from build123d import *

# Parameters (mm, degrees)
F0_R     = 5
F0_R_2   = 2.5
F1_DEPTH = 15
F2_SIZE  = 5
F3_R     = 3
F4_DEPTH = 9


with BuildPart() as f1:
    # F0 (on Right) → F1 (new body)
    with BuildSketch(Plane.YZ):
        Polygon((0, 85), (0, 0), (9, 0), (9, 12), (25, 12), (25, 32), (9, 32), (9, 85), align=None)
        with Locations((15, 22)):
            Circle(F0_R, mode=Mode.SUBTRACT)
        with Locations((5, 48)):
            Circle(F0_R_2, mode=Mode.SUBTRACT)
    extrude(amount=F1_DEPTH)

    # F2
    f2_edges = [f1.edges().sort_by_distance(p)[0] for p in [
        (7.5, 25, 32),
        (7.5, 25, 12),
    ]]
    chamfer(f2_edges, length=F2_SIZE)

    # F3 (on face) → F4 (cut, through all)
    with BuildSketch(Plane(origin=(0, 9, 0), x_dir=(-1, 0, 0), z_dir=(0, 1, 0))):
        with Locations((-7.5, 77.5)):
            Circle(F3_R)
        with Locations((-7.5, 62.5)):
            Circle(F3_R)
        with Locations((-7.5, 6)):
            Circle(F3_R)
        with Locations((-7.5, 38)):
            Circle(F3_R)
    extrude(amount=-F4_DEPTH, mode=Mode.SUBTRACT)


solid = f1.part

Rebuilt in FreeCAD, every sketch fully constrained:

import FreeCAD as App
import Part
import Sketcher

V = App.Vector


def edges_at(feature, points):
    """Names of the edges that pass closest to the given points."""
    edges = feature.Shape.Edges
    near = lambda p: min(range(len(edges)), key=lambda i: edges[i].distToShape(Part.Vertex(*p))[0])
    return sorted({f"Edge{near(p) + 1}" for p in points})

doc = App.newDocument("Part")
body = doc.addObject("PartDesign::Body", "Body")

# Sketch on YZ plane
sketch1 = body.newObject("Sketcher::SketchObject", "Sketch")
sketch1.AttachmentSupport = (doc.getObject("YZ_Plane"), [""])
sketch1.MapMode = "FlatFace"
sketch1.addGeometry([
    Part.LineSegment(V(0, 85, 0), V(0, 0, 0)),  # 0
    Part.LineSegment(V(0, 0, 0), V(9, 0, 0)),  # 1
    Part.LineSegment(V(9, 0, 0), V(9, 12, 0)),  # 2
    Part.LineSegment(V(9, 12, 0), V(25, 12, 0)),  # 3
    Part.LineSegment(V(25, 12, 0), V(25, 32, 0)),  # 4
    Part.LineSegment(V(25, 32, 0), V(9, 32, 0)),  # 5
    Part.LineSegment(V(9, 32, 0), V(9, 85, 0)),  # 6
    Part.LineSegment(V(9, 85, 0), V(0, 85, 0)),  # 7
    Part.Circle(V(15, 22, 0), V(0, 0, 1), 5),  # 8
    Part.Circle(V(5, 48, 0), V(0, 0, 1), 2.5),  # 9
], False)
sketch1.addConstraint([
    Sketcher.Constraint("Coincident", 0, 2, 1, 1),
    Sketcher.Constraint("Coincident", 1, 2, 2, 1),
    Sketcher.Constraint("Coincident", 2, 2, 3, 1),
    Sketcher.Constraint("Coincident", 3, 2, 4, 1),
    Sketcher.Constraint("Coincident", 4, 2, 5, 1),
    Sketcher.Constraint("Coincident", 5, 2, 6, 1),
    Sketcher.Constraint("Coincident", 6, 2, 7, 1),
    Sketcher.Constraint("Coincident", 7, 2, 0, 1),
    Sketcher.Constraint("Vertical", 0),
    Sketcher.Constraint("Horizontal", 1),
    Sketcher.Constraint("Vertical", 2),
    Sketcher.Constraint("Horizontal", 3),
    Sketcher.Constraint("Vertical", 4),
    Sketcher.Constraint("Horizontal", 5),
    Sketcher.Constraint("Vertical", 6),
    Sketcher.Constraint("Horizontal", 7),
    Sketcher.Constraint("Coincident", 0, 2, -1, 1),
    Sketcher.Constraint("Vertical", 2, 2, 5, 2),
    Sketcher.Constraint("Diameter", 8, 10.0),
    Sketcher.Constraint("Diameter", 9, 5.0),
    Sketcher.Constraint("DistanceX", 1, 1, 1, 2, 9.0),
    Sketcher.Constraint("DistanceX", 3, 1, 3, 2, 16.0),
    Sketcher.Constraint("DistanceY", 0, 2, 0, 1, 85.0),
    Sketcher.Constraint("DistanceY", 2, 1, 2, 2, 12.0),
    Sketcher.Constraint("DistanceY", 4, 1, 4, 2, 20.0),
    Sketcher.Constraint("DistanceX", -1, 1, 8, 3, 15.0),
    Sketcher.Constraint("DistanceY", -1, 1, 8, 3, 22.0),
    Sketcher.Constraint("DistanceX", -1, 1, 9, 3, 5.0),
    Sketcher.Constraint("DistanceY", -1, 1, 9, 3, 48.0),
])
pad1 = body.newObject("PartDesign::Pad", "Pad")
pad1.Profile = sketch1
pad1.Length = 15
doc.recompute()

chamfer = body.newObject("PartDesign::Chamfer", "Chamfer")
chamfer.Base = (pad1, edges_at(pad1, [(7.5, 25, 32), (7.5, 25, 12)]))
chamfer.Size = 5

# Sketch on XZ plane
sketch2 = body.newObject("Sketcher::SketchObject", "Sketch001")
sketch2.AttachmentSupport = (doc.getObject("XZ_Plane"), [""])
sketch2.MapMode = "FlatFace"
sketch2.AttachmentOffset = App.Placement(V(0, 0, -9), App.Rotation())
sketch2.addGeometry([
    Part.Circle(V(7.5, 77.5, 0), V(0, 0, 1), 3),
    Part.Circle(V(7.5, 62.5, 0), V(0, 0, 1), 3),
    Part.Circle(V(7.5, 6, 0), V(0, 0, 1), 3),
    Part.Circle(V(7.5, 38, 0), V(0, 0, 1), 3),
], False)
sketch2.addConstraint([
    Sketcher.Constraint("Equal", 0, 1),
    Sketcher.Constraint("Equal", 1, 2),
    Sketcher.Constraint("Equal", 2, 3),
    Sketcher.Constraint("Vertical", 0, 3, 1, 3),
    Sketcher.Constraint("Vertical", 1, 3, 2, 3),
    Sketcher.Constraint("Vertical", 2, 3, 3, 3),
    Sketcher.Constraint("Diameter", 0, 6.0),
    Sketcher.Constraint("DistanceY", -1, 1, 2, 3, 6.0),
    Sketcher.Constraint("DistanceY", -1, 1, 3, 3, 38.0),
    Sketcher.Constraint("DistanceY", 1, 3, 0, 3, 15.0),
    Sketcher.Constraint("DistanceX", -1, 1, 0, 3, 7.5),
    Sketcher.Constraint("DistanceY", -1, 1, 0, 3, 77.5),
])
pocket1 = body.newObject("PartDesign::Pocket", "Pocket")
pocket1.Profile = sketch2
pocket1.Type = "ThroughAll"
pocket1.Reversed = True

doc.recompute()
